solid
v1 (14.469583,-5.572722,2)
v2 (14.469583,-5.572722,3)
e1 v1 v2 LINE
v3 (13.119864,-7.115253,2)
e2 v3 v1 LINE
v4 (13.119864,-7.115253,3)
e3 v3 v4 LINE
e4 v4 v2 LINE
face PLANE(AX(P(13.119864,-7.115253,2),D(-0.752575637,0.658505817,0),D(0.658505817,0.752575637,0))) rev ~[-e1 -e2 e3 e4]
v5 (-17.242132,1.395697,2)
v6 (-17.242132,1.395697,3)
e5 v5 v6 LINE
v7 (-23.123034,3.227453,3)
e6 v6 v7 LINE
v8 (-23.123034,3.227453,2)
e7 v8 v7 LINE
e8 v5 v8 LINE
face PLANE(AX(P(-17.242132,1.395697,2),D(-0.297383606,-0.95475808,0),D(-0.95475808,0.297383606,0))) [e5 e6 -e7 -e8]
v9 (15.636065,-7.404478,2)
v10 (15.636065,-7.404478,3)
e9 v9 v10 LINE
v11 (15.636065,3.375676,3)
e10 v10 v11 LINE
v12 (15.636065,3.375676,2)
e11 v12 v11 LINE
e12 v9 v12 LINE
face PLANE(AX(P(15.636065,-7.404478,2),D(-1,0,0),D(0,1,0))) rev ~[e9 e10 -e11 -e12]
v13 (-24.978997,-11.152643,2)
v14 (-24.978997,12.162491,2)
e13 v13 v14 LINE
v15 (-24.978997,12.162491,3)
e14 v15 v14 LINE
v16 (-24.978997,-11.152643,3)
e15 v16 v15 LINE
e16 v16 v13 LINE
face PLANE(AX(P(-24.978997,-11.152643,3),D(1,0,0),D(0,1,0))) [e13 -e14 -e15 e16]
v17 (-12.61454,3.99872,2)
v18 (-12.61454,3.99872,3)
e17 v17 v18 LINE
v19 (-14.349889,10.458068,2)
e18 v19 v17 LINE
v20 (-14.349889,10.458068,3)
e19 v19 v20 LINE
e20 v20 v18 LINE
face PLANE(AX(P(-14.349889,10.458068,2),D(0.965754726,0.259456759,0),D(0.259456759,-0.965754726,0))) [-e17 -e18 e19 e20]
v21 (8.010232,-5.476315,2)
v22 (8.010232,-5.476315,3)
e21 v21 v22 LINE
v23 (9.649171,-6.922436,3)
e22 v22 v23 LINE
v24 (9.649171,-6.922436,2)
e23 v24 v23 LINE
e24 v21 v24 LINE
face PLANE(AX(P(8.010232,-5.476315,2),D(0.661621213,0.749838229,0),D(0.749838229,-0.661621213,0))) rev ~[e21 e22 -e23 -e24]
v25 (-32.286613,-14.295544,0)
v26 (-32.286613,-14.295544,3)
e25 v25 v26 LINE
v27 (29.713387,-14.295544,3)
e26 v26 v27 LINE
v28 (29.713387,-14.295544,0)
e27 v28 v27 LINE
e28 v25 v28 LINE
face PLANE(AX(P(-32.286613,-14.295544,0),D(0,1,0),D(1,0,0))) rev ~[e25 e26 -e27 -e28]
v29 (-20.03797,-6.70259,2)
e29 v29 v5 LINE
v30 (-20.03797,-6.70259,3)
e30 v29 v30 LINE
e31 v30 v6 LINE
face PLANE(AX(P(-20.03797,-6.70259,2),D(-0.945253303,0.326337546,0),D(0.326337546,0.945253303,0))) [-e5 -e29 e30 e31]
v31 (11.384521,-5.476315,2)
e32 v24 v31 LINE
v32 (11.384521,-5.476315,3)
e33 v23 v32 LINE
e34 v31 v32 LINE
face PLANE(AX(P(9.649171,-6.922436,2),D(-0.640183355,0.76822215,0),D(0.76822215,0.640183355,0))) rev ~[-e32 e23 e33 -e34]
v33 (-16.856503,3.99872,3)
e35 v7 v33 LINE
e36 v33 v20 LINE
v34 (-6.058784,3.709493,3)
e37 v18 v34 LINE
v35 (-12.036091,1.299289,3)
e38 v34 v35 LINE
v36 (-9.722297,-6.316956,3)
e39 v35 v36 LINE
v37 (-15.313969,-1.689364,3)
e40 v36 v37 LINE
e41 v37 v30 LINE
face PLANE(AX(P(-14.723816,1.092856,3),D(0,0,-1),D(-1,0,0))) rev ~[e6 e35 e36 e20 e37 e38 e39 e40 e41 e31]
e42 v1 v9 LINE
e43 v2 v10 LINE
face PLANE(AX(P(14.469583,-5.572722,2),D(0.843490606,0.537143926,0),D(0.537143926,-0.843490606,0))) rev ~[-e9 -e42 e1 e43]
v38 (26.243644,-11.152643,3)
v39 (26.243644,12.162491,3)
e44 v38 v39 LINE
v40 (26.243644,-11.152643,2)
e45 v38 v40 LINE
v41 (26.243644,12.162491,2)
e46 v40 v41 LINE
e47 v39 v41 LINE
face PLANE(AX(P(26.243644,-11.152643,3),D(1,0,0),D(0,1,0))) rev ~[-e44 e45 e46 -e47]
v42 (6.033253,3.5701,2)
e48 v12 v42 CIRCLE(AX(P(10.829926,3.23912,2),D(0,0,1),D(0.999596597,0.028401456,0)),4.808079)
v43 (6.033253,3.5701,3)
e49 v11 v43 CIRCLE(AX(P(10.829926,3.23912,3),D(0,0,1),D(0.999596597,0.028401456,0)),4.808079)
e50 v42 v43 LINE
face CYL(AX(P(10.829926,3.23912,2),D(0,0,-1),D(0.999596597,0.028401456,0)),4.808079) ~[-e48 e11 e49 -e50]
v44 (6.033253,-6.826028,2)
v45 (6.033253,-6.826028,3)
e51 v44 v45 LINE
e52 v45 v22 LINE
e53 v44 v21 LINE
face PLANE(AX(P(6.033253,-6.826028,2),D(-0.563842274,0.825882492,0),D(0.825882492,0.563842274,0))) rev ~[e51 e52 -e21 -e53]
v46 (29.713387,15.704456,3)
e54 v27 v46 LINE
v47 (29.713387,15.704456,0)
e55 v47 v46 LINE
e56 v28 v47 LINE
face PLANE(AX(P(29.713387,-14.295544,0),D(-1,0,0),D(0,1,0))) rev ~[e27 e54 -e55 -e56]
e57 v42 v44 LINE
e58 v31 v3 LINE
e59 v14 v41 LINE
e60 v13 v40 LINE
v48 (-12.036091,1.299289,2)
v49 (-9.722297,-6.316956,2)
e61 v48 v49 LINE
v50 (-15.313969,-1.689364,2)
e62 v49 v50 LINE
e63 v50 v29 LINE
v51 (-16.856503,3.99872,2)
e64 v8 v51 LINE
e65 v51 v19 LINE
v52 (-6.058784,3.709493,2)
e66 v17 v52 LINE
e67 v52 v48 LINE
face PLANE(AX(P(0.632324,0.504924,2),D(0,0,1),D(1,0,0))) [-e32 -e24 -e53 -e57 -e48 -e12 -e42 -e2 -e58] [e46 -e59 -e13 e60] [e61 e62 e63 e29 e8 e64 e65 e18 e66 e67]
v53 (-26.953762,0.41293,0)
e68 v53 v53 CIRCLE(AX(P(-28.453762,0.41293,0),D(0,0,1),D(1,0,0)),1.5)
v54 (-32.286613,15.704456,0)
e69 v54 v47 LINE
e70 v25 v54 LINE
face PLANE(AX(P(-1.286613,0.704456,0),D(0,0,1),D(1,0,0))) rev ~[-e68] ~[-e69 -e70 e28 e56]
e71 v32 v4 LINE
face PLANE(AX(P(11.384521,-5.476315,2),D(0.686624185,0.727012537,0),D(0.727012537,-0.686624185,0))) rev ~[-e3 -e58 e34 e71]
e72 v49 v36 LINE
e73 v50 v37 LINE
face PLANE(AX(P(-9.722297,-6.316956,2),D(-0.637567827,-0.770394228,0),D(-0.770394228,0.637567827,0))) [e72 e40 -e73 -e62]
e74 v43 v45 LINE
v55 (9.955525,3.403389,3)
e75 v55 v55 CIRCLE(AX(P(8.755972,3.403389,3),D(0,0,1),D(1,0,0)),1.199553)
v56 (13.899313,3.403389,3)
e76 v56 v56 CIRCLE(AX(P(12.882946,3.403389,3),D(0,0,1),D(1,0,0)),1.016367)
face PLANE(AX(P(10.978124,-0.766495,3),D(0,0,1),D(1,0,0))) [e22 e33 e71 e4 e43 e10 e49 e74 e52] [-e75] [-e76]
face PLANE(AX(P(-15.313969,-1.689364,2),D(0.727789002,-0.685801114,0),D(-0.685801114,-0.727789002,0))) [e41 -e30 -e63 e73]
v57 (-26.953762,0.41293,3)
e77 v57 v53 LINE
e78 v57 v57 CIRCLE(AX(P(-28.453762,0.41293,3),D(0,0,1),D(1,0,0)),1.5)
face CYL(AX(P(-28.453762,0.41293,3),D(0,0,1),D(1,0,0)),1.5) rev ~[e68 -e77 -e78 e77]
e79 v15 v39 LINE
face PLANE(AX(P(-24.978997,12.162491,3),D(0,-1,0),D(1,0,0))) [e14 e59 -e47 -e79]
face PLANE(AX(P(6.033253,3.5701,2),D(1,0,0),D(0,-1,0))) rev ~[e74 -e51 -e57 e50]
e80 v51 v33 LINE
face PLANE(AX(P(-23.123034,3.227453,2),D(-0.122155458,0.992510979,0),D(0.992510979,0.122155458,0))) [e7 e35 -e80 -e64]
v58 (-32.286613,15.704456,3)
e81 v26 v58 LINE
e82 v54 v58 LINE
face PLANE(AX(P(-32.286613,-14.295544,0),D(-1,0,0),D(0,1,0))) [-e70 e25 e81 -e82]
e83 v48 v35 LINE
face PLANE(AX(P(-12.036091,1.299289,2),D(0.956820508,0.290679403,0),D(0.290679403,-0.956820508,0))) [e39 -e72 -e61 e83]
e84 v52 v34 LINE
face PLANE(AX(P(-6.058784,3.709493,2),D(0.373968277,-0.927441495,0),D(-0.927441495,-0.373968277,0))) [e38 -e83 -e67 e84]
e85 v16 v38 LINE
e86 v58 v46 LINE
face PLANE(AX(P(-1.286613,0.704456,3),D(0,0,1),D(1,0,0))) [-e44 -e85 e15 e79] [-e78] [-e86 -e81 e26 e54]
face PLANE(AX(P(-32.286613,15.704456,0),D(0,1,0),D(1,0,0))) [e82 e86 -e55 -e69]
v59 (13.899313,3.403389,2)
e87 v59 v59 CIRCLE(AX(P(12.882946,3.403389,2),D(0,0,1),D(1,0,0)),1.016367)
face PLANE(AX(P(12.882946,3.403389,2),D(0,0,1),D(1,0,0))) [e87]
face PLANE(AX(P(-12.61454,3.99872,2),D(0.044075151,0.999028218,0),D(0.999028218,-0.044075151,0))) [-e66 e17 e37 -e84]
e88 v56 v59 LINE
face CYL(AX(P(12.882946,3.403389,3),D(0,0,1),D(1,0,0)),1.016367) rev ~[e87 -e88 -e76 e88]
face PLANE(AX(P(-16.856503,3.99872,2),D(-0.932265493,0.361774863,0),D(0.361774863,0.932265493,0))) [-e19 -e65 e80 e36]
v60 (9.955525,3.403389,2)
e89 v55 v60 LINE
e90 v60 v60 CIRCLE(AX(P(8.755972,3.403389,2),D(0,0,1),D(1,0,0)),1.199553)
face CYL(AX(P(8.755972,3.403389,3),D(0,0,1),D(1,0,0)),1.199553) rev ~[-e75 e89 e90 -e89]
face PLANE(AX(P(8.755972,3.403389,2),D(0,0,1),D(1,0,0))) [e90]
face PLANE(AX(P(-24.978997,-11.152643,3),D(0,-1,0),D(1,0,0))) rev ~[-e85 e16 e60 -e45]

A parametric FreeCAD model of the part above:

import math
import FreeCAD as App
import Part
import Sketcher

V = App.Vector
Q = App.Units.Quantity


def add_polygon(sketch, points):
    """Adds a closed chain of lines whose ends are joined by coincident constraints."""
    first, n = sketch.GeometryCount, len(points)
    for a, b in zip(points, points[1:] + points[:1]):
        sketch.addGeometry(Part.LineSegment(App.Vector(*a, 0), App.Vector(*b, 0)), False)
    for i in range(n):
        sketch.addConstraint(Sketcher.Constraint("Coincident", first + i, 2, first + (i + 1) % n, 1))

doc = App.newDocument("Part")
params = doc.addObject("Spreadsheet::Sheet", "Params")
for row, (alias, value) in enumerate([
    ("sketch1_width", "62 mm"),
    ("sketch1_height", "30 mm"),
    ("pad1_length", "3 mm"),
    ("pocket1_length", "1 mm"),
    ("sketch3_diameter", "3 mm"),
    ("pad2_length", "1 mm"),
    ("pad3_length", "1 mm"),
    ("pocket3_length", "1 mm"),
], start=1):
    params.set(f"A{row}", alias)
    params.set(f"B{row}", "=" + value)
    params.setAlias(f"B{row}", alias)

body = doc.addObject("PartDesign::Body", "Body")

# Sketch on XY plane
sketch1 = body.newObject("Sketcher::SketchObject", "Sketch")
sketch1.AttachmentSupport = (doc.getObject("XY_Plane"), [""])
sketch1.MapMode = "FlatFace"
add_polygon(sketch1, [(-32, 16), (-32, -14), (30, -14), (30, 16)])  # lines 0-3
sketch1.addConstraint([
    Sketcher.Constraint("Vertical", 0),
    Sketcher.Constraint("Horizontal", 1),
    Sketcher.Constraint("Vertical", 2),
    Sketcher.Constraint("Horizontal", 3),
    Sketcher.Constraint("DistanceX", 1, 1, 1, 2, Q("62 mm")),
    Sketcher.Constraint("DistanceY", 0, 2, 0, 1, Q("30 mm")),
    Sketcher.Constraint("DistanceX", 0, 2, -1, 1, Q("32.286613 mm")),
    Sketcher.Constraint("DistanceY", 0, 2, -1, 1, Q("14.295544 mm")),
])
sketch1.setExpression("Constraints[8]", "Params.sketch1_width")
sketch1.setExpression("Constraints[9]", "Params.sketch1_height")
pad1 = body.newObject("PartDesign::Pad", "Pad")
pad1.Profile = sketch1
pad1.setExpression("Length", "Params.pad1_length")

# Sketch on XY plane
sketch2 = body.newObject("Sketcher::SketchObject", "Sketch001")
sketch2.AttachmentSupport = (doc.getObject("XY_Plane"), [""])
sketch2.MapMode = "FlatFace"
sketch2.AttachmentOffset = App.Placement(V(0, 0, 3), App.Rotation())
add_polygon(sketch2, [(-25, 12), (-25, -11), (26, -11), (26, 12)])  # lines 0-3
sketch2.addConstraint([
    Sketcher.Constraint("Vertical", 0),
    Sketcher.Constraint("Horizontal", 1),
    Sketcher.Constraint("Vertical", 2),
    Sketcher.Constraint("Horizontal", 3),
    Sketcher.Constraint("DistanceX", 1, 1, 1, 2, Q("51.222641 mm")),
    Sketcher.Constraint("DistanceY", 0, 2, 0, 1, Q("23.315135 mm")),
    Sketcher.Constraint("DistanceY", -1, 1, 2, 2, Q("12.162491 mm")),
    Sketcher.Constraint("DistanceX", 0, 2, -1, 1, Q("24.978997 mm")),
])
pocket1 = body.newObject("PartDesign::Pocket", "Pocket")
pocket1.Profile = sketch2
pocket1.setExpression("Length", "Params.pocket1_length")

# Sketch on XY plane
sketch3 = body.newObject("Sketcher::SketchObject", "Sketch002")
sketch3.AttachmentSupport = (doc.getObject("XY_Plane"), [""])
sketch3.MapMode = "FlatFace"
sketch3.AttachmentOffset = App.Placement(V(0, 0, 3), App.Rotation())
sketch3.addGeometry(Part.Circle(V(-28.5, 0.4, 0), V(0, 0, 1), 1.5), False)
sketch3.addConstraint([
    Sketcher.Constraint("Diameter", 0, Q("3 mm")),
    Sketcher.Constraint("DistanceY", -1, 1, 0, 3, Q("0.41293 mm")),
    Sketcher.Constraint("DistanceX", 0, 3, -1, 1, Q("28.453762 mm")),
])
sketch3.setExpression("Constraints[0]", "Params.sketch3_diameter")
pocket2 = body.newObject("PartDesign::Pocket", "Pocket001")
pocket2.Profile = sketch3
pocket2.Type = "ThroughAll"

# Sketch on XY plane
sketch4 = body.newObject("Sketcher::SketchObject", "Sketch003")
sketch4.AttachmentSupport = (doc.getObject("XY_Plane"), [""])
sketch4.MapMode = "FlatFace"
sketch4.AttachmentOffset = App.Placement(V(0, 0, 2), App.Rotation())
add_polygon(sketch4, [(-14, 10), (-17, 4), (-23, 3), (-17, 1), (-20, -7), (-15, -2), (-10, -6), (-12, 1), (-6, 4), (-13, 4)])  # lines 0-9
sketch4.addConstraint([
    Sketcher.Constraint("Horizontal", 0, 2, 8, 2),
    Sketcher.Constraint("DistanceX", 3, 2, 4, 2, Q("4.724001 mm")),
    Sketcher.Constraint("DistanceX", 1, 2, 2, 2, Q("5.880902 mm")),
    Sketcher.Constraint("Distance", 3, Q("8.567319 mm")),
    Sketcher.Constraint("Distance", 6, Q("7.959952 mm")),
    Sketcher.Constraint("DistanceY", -1, 1, 0, 2, Q("3.99872 mm")),
    Sketcher.Constraint("DistanceX", 3, 2, -1, 1, Q("20.03797 mm")),
    Sketcher.Constraint("DistanceY", 3, 2, -1, 1, Q("6.70259 mm")),
    Sketcher.Constraint("DistanceX", 6, 2, -1, 1, Q("12.036091 mm")),
    Sketcher.Constraint("DistanceY", -1, 1, 6, 2, Q("1.299289 mm")),
    Sketcher.Constraint("DistanceX", 8, 2, -1, 1, Q("12.61454 mm")),
    Sketcher.Constraint("DistanceX", 9, 2, -1, 1, Q("14.349889 mm")),
    Sketcher.Constraint("DistanceY", -1, 1, 9, 2, Q("10.458068 mm")),
    Sketcher.Constraint("DistanceX", 1, 2, 0, 2, Q("6.266531 mm")),
    Sketcher.Constraint("DistanceY", 4, 2, 2, 2, Q("3.085061 mm")),
    Sketcher.Constraint("DistanceY", 5, 2, 1, 2, Q("9.544409 mm")),
    Sketcher.Constraint("DistanceX", 2, 2, 6, 2, Q("5.206041 mm")),
    Sketcher.Constraint("DistanceY", 5, 2, 7, 2, Q("10.026449 mm")),
    Sketcher.Constraint("DistanceX", 0, 2, 7, 2, Q("10.797719 mm")),
    Sketcher.Constraint("Distance", 1, Q("6.313815 mm")),
])
pad2 = body.newObject("PartDesign::Pad", "Pad001")
pad2.Profile = sketch4
pad2.setExpression("Length", "Params.pad2_length")

# Sketch on XY plane
sketch5 = body.newObject("Sketcher::SketchObject", "Sketch004")
sketch5.AttachmentSupport = (doc.getObject("XY_Plane"), [""])
sketch5.MapMode = "FlatFace"
sketch5.AttachmentOffset = App.Placement(V(0, 0, 2), App.Rotation())
sketch5.addGeometry([
    Part.LineSegment(V(6, 3.6, 0), V(6, -6.8, 0)),  # 0
    Part.LineSegment(V(6, -6.8, 0), V(8, -5.5, 0)),  # 1
    Part.LineSegment(V(8, -5.5, 0), V(9.6, -6.9, 0)),  # 2
    Part.LineSegment(V(9.6, -6.9, 0), V(11.4, -5.5, 0)),  # 3
    Part.LineSegment(V(11.4, -5.5, 0), V(13.1, -7.1, 0)),  # 4
    Part.LineSegment(V(13.1, -7.1, 0), V(14.5, -5.6, 0)),  # 5
    Part.LineSegment(V(14.5, -5.6, 0), V(15.6, -7.4, 0)),  # 6
    Part.LineSegment(V(15.6, -7.4, 0), V(15.6, 3.4, 0)),  # 7
    Part.ArcOfCircle(Part.Circle(V(10.8, 3.2, 0), V(0, 0, 1), 4.8), math.radians(2), math.radians(176)),  # 8
], False)
sketch5.addConstraint([
    Sketcher.Constraint("Coincident", 0, 2, 1, 1),
    Sketcher.Constraint("Coincident", 1, 2, 2, 1),
    Sketcher.Constraint("Coincident", 2, 2, 3, 1),
    Sketcher.Constraint("Coincident", 3, 2, 4, 1),
    Sketcher.Constraint("Coincident", 4, 2, 5, 1),
    Sketcher.Constraint("Coincident", 5, 2, 6, 1),
    Sketcher.Constraint("Coincident", 6, 2, 7, 1),
    Sketcher.Constraint("Coincident", 7, 2, 8, 1),
    Sketcher.Constraint("Coincident", 8, 2, 0, 1),
    Sketcher.Constraint("Vertical", 0),
    Sketcher.Constraint("Vertical", 7),
    Sketcher.Constraint("Horizontal", 1, 2, 3, 2),
    Sketcher.Constraint("Radius", 8, Q("4.808079 mm")),
    Sketcher.Constraint("DistanceY", 0, 2, 0, 1, Q("10.396128 mm")),
    Sketcher.Constraint("DistanceY", -1, 1, 8, 2, Q("3.5701 mm")),
    Sketcher.Constraint("DistanceX", 4, 2, 6, 2, Q("2.516201 mm")),
    Sketcher.Constraint("Distance", 4, Q("2.386951 mm")),
    Sketcher.Constraint("Distance", 5, Q("2.049669 mm")),
    Sketcher.Constraint("DistanceY", 7, 1, 7, 2, Q("10.780154 mm")),
    Sketcher.Constraint("DistanceY", -1, 1, 8, 3, Q("3.23912 mm")),
    Sketcher.Constraint("DistanceX", -1, 1, 2, 2, Q("9.649171 mm")),
    Sketcher.Constraint("DistanceX", -1, 1, 3, 2, Q("11.384521 mm")),
    Sketcher.Constraint("DistanceY", 5, 2, -1, 1, Q("5.572722 mm")),
    Sketcher.Constraint("DistanceX", 0, 2, 1, 2, Q("1.976979 mm")),
    Sketcher.Constraint("DistanceX", 1, 2, 2, 2, Q("1.638939 mm")),
    Sketcher.Constraint("DistanceY", 2, 2, 1, 2, Q("1.446121 mm")),
    Sketcher.Constraint("DistanceY", 2, 2, 0, 2, Q("0.096408 mm")),
    Sketcher.Constraint("DistanceY", 4, 2, 3, 2, Q("1.638938 mm")),
])
pad3 = body.newObject("PartDesign::Pad", "Pad002")
pad3.Profile = sketch5
pad3.setExpression("Length", "Params.pad3_length")

# Sketch on XY plane
sketch6 = body.newObject("Sketcher::SketchObject", "Sketch005")
sketch6.AttachmentSupport = (doc.getObject("XY_Plane"), [""])
sketch6.MapMode = "FlatFace"
sketch6.AttachmentOffset = App.Placement(V(0, 0, 3), App.Rotation())
sketch6.addGeometry([
    Part.Circle(V(8.8, 3.4, 0), V(0, 0, 1), 1.2),
    Part.Circle(V(12.9, 3.4, 0), V(0, 0, 1), 1),
], False)
sketch6.addConstraint([
    Sketcher.Constraint("Horizontal", 0, 3, 1, 3),
    Sketcher.Constraint("Diameter", 0, Q("2.399106 mm")),
    Sketcher.Constraint("Diameter", 1, Q("2.032734 mm")),
    Sketcher.Constraint("DistanceY", -1, 1, 0, 3, Q("3.403389 mm")),
    Sketcher.Constraint("DistanceX", -1, 1, 0, 3, Q("8.755972 mm")),
    Sketcher.Constraint("DistanceX", -1, 1, 1, 3, Q("12.882946 mm")),
])
pocket3 = body.newObject("PartDesign::Pocket", "Pocket002")
pocket3.Profile = sketch6
pocket3.setExpression("Length", "Params.pocket3_length")

doc.recompute()
